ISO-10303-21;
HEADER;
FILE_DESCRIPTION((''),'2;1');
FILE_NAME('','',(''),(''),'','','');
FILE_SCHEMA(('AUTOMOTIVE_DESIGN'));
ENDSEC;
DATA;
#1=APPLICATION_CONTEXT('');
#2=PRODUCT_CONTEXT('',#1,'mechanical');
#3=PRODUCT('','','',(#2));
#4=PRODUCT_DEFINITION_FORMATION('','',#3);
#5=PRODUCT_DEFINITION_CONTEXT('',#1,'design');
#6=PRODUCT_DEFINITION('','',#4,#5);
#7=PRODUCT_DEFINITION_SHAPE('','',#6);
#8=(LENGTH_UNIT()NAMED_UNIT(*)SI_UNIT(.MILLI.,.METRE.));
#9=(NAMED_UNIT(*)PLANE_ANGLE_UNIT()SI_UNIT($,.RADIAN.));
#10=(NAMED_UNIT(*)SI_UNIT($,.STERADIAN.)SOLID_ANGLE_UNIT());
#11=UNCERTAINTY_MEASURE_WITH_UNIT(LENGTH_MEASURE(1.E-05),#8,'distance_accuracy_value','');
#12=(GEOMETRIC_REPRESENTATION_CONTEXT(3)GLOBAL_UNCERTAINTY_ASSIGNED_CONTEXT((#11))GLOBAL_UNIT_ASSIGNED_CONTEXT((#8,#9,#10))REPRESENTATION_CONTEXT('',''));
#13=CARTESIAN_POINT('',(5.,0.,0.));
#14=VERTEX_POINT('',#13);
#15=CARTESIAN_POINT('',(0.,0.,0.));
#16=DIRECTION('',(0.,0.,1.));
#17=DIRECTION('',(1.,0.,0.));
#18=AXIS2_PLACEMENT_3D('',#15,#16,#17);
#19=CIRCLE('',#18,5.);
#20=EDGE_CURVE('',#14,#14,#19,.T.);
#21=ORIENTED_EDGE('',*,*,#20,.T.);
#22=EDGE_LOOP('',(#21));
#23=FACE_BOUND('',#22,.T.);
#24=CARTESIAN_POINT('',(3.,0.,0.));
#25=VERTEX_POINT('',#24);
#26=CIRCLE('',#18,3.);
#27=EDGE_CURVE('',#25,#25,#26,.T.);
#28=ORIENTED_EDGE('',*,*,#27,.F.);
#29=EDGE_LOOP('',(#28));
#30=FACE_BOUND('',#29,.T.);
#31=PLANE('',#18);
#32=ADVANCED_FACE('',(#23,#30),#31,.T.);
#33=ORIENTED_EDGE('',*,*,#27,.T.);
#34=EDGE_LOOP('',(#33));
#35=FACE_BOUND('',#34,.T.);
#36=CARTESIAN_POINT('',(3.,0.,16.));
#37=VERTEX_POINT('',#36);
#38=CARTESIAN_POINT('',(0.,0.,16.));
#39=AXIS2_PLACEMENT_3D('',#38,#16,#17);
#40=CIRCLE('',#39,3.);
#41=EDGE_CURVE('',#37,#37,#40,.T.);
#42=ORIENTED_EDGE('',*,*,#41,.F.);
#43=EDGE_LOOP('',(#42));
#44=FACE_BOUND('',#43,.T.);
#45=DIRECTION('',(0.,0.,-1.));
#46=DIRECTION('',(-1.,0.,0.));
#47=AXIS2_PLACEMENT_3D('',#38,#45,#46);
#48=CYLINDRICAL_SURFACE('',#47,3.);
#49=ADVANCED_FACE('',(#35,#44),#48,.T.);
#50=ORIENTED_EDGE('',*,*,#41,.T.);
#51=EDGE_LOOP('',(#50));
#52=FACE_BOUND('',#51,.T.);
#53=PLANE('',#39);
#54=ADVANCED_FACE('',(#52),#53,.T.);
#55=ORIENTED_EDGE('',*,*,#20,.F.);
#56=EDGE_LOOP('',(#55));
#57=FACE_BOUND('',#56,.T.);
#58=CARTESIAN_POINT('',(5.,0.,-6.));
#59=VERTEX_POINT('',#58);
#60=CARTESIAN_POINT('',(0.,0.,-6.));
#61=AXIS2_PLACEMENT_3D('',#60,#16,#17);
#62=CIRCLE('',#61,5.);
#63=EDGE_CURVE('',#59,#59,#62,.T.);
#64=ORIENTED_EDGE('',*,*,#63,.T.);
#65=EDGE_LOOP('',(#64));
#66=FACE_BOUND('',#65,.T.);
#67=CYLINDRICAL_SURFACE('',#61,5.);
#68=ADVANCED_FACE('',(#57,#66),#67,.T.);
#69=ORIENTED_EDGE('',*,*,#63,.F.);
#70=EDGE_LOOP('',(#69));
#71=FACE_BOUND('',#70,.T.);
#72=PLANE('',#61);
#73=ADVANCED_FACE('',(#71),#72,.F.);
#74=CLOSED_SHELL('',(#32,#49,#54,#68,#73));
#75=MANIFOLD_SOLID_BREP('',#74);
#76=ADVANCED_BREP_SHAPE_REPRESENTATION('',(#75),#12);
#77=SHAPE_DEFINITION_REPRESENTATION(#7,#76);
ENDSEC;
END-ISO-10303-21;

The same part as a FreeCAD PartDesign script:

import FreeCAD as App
import Part
import Sketcher

V = App.Vector

doc = App.newDocument("Part")
body = doc.addObject("PartDesign::Body", "Body")

# Sketch on XY plane
sketch1 = body.newObject("Sketcher::SketchObject", "Sketch")
sketch1.AttachmentSupport = (doc.getObject("XY_Plane"), [""])
sketch1.MapMode = "FlatFace"
sketch1.addGeometry(Part.Circle(V(0, 0, 0), V(0, 0, 1), 3), False)
sketch1.addConstraint([
    Sketcher.Constraint("Coincident", 0, 3, -1, 1),
    Sketcher.Constraint("Diameter", 0, 6.0),
])
pad1 = body.newObject("PartDesign::Pad", "Pad")
pad1.Profile = sketch1
pad1.Length = 16

# Sketch on XY plane
sketch2 = body.newObject("Sketcher::SketchObject", "Sketch001")
sketch2.AttachmentSupport = (doc.getObject("XY_Plane"), [""])
sketch2.MapMode = "FlatFace"
sketch2.addGeometry(Part.Circle(V(0, 0, 0), V(0, 0, 1), 5), False)
sketch2.addConstraint([
    Sketcher.Constraint("Coincident", 0, 3, -1, 1),
    Sketcher.Constraint("Diameter", 0, 10.0),
])
pad2 = body.newObject("PartDesign::Pad", "Pad001")
pad2.Profile = sketch2
pad2.Length = 6
pad2.Reversed = True

doc.recompute()
